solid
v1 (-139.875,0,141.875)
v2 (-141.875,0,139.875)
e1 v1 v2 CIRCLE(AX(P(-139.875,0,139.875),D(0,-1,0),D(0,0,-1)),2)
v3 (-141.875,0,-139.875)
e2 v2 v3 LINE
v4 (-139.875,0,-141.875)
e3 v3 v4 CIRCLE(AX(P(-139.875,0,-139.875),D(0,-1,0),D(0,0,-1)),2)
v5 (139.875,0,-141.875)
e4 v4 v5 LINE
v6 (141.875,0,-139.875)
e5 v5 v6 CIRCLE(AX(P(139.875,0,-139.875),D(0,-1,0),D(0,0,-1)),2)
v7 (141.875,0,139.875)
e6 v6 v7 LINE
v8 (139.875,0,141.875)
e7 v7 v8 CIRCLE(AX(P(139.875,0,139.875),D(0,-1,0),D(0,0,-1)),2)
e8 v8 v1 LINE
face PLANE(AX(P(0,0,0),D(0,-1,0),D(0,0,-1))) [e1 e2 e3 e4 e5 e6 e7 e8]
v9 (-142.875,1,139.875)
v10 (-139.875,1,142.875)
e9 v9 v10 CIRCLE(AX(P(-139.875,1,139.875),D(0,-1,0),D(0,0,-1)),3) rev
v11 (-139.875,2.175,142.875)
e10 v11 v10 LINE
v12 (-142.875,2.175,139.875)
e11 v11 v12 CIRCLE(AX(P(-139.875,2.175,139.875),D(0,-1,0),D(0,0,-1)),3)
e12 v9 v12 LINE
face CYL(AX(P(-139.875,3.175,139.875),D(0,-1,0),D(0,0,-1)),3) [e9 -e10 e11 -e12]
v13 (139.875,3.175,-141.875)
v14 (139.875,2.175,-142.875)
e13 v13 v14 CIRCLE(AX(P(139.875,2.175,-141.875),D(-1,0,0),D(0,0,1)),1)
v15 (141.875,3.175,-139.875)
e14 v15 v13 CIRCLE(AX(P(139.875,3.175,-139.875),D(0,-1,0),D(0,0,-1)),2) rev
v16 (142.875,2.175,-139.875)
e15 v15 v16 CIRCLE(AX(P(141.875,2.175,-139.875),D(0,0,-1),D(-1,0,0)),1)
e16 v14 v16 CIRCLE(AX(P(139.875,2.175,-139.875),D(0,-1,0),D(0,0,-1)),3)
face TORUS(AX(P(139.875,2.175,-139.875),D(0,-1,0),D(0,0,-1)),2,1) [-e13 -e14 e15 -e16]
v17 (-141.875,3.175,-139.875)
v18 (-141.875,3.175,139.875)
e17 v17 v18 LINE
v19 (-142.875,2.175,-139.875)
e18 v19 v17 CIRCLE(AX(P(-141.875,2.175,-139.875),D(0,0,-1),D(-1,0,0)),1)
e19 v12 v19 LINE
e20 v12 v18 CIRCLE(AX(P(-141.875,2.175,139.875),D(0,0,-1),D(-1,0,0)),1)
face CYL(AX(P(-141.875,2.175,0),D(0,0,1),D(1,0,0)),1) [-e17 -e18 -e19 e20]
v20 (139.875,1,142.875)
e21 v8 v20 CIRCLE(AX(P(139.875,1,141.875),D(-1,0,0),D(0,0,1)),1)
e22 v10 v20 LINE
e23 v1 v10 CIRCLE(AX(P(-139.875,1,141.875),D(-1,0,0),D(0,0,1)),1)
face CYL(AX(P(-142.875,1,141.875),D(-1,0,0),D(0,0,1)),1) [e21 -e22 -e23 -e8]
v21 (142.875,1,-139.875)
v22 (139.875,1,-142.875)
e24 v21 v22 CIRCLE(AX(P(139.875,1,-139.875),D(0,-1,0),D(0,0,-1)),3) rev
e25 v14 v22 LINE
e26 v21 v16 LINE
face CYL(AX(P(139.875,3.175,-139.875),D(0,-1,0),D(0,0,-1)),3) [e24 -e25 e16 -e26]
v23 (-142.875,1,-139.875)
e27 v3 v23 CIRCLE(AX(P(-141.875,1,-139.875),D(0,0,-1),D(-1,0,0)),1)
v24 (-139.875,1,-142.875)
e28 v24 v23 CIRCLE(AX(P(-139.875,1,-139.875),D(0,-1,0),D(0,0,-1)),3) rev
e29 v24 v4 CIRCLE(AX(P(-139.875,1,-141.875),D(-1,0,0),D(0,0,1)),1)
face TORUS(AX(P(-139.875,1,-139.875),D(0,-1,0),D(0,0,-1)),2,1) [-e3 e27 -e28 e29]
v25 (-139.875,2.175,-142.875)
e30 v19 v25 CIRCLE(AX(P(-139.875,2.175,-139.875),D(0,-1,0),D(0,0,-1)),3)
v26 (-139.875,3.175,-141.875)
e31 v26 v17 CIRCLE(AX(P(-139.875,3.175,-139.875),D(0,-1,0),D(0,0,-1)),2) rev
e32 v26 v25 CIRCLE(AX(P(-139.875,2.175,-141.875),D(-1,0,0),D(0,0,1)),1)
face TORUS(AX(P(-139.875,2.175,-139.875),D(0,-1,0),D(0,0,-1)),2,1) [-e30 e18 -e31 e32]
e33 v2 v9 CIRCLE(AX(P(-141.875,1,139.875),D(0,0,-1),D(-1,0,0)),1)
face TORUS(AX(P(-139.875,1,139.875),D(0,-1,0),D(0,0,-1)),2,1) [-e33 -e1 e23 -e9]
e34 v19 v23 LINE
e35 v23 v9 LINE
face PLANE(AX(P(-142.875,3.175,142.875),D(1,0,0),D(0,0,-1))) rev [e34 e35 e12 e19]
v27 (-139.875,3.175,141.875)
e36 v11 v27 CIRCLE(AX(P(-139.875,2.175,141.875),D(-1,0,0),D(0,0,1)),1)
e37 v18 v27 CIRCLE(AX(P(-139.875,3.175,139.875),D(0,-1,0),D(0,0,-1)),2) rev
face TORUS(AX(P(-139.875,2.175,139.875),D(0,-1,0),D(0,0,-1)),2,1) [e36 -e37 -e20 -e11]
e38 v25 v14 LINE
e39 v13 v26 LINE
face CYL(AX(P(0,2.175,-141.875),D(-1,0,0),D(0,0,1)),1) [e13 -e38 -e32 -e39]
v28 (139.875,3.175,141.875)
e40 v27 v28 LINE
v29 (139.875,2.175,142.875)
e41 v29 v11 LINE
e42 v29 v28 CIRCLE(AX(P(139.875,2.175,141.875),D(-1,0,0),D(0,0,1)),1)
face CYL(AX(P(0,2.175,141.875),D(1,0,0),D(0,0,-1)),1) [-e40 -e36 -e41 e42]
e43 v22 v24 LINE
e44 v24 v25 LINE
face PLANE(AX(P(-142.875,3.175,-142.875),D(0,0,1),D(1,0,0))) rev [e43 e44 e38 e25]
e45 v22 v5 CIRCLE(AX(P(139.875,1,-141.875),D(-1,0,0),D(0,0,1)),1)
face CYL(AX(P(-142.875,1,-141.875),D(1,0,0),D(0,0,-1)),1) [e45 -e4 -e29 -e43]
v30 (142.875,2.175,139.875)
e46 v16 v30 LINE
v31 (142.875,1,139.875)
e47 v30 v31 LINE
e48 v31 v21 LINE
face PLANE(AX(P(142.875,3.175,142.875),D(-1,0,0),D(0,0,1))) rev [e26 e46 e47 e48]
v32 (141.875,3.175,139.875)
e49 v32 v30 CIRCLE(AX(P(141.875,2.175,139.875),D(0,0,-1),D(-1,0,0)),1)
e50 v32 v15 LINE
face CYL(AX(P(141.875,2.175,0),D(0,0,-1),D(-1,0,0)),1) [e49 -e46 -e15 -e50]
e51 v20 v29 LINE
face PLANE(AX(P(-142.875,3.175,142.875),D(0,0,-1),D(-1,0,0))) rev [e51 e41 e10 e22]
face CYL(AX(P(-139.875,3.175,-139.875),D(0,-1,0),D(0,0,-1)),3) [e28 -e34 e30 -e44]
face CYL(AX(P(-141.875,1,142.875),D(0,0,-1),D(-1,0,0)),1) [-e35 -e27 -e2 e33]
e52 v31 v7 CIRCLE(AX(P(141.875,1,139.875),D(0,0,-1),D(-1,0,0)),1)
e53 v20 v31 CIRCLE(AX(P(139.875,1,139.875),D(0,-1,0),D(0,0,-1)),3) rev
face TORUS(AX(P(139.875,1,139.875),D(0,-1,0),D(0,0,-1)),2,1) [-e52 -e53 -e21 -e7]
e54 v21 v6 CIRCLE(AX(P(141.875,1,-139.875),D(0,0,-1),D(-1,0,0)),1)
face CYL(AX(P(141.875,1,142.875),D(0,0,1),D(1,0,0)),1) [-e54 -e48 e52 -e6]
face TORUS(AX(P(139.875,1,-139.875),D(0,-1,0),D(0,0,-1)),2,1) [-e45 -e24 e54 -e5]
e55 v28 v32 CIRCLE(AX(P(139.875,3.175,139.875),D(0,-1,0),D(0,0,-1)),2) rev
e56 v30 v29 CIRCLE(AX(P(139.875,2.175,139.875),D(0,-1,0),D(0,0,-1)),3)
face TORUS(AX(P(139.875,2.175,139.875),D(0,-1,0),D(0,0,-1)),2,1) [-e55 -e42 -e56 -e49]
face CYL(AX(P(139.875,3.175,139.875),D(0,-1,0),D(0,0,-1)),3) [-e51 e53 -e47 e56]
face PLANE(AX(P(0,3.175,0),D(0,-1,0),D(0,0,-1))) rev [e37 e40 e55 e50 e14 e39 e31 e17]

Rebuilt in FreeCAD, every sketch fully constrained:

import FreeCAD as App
import Part
import Sketcher
Q = App.Units.Quantity


def edges_at(feature, points):
    """Names of the edges that pass closest to the given points."""
    edges = feature.Shape.Edges
    near = lambda p: min(range(len(edges)), key=lambda i: edges[i].distToShape(Part.Vertex(*p))[0])
    return sorted({f"Edge{near(p) + 1}" for p in points})

doc = App.newDocument("Part")
body = doc.addObject("PartDesign::Body", "Body")

# Sketch on XZ plane
sketch1 = body.newObject("Sketcher::SketchObject", "Sketch")
sketch1.AttachmentSupport = (doc.getObject("XZ_Plane"), [""])
sketch1.MapMode = "FlatFace"
sketch1.addGeometry([
    Part.LineSegment(App.Vector(-143, -143, 0), App.Vector(-143, 143, 0)),
    Part.LineSegment(App.Vector(-143, 143, 0), App.Vector(143, 143, 0)),
    Part.LineSegment(App.Vector(143, 143, 0), App.Vector(143, -143, 0)),
    Part.LineSegment(App.Vector(143, -143, 0), App.Vector(-143, -143, 0)),
], False)
sketch1.addConstraint([
    Sketcher.Constraint("Coincident", 0, 2, 1, 1),
    Sketcher.Constraint("Coincident", 1, 2, 2, 1),
    Sketcher.Constraint("Coincident", 2, 2, 3, 1),
    Sketcher.Constraint("Coincident", 3, 2, 0, 1),
    Sketcher.Constraint("Vertical", 0),
    Sketcher.Constraint("Horizontal", 1),
    Sketcher.Constraint("Vertical", 2),
    Sketcher.Constraint("Horizontal", 3),
    Sketcher.Constraint("Symmetric", 0, 2, 2, 2, -1, 1),
    Sketcher.Constraint("Equal", 3, 0),
    Sketcher.Constraint("DistanceX", 1, 1, 1, 2, Q("285.75 mm")),
])
pad1 = body.newObject("PartDesign::Pad", "Pad")
pad1.Profile = sketch1
pad1.Length = 3.175
pad1.Reversed = True
doc.recompute()

fillet = body.newObject("PartDesign::Fillet", "Fillet")
fillet.Base = (pad1, edges_at(pad1, [
    (142.875, 1.587, 142.875),
    (-142.875, 1.587, 142.875),
    (-142.875, 1.587, -142.875),
    (142.875, 1.587, -142.875),
]))
fillet.Radius = 3
doc.recompute()

fillet2 = body.newObject("PartDesign::Fillet", "Fillet001")
fillet2.Base = (fillet, edges_at(fillet, [
    (0, 3.175, -142.875),
    (142.875, 3.175, 0),
    (-142.875, 3.175, 0),
    (0, 3.175, 142.875),
    (-141.996, 3.175, -141.996),
    (-141.996, 3.175, 141.996),
    (141.996, 3.175, 141.996),
    (141.996, 3.175, -141.996),
]))
fillet2.Radius = 1
doc.recompute()

fillet3 = body.newObject("PartDesign::Fillet", "Fillet002")
fillet3.Base = (fillet2, edges_at(fillet2, [
    (0, 0, -142.875),
    (142.875, 0, 0),
    (0, 0, 142.875),
    (-142.875, 0, 0),
    (-141.996, 0, -141.996),
    (-141.996, 0, 141.996),
    (141.996, 0, 141.996),
    (141.996, 0, -141.996),
]))
fillet3.Radius = 1

doc.recompute()
